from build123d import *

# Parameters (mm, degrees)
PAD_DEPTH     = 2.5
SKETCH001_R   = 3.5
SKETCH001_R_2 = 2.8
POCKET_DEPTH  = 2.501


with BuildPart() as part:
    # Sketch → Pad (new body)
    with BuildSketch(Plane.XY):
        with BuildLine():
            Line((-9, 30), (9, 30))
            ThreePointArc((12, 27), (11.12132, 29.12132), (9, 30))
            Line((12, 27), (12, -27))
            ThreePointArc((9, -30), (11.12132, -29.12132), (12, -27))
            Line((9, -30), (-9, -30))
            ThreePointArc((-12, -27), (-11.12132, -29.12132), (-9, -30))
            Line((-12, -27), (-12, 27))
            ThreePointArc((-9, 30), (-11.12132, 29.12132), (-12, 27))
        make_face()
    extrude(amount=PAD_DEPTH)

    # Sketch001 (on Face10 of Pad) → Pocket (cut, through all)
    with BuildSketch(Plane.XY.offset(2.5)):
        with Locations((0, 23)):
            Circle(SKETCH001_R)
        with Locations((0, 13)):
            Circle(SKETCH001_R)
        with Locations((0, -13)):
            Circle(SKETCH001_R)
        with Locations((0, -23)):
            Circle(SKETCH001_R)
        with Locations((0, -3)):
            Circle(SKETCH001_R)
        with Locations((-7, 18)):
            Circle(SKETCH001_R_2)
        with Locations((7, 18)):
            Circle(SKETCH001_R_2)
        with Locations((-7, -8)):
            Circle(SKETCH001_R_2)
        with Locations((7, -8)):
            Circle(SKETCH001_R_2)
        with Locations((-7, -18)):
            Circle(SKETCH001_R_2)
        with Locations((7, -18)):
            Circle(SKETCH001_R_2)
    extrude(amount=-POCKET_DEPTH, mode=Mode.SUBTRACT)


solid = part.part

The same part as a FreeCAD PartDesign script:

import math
import FreeCAD as App
import Part
import Sketcher
from FreeCAD import Vector

doc = App.newDocument("Part")
body = doc.addObject("PartDesign::Body", "Body")

# Sketch on XY plane
sketch1 = doc.addObject("Sketcher::SketchObject", "Sketch")
body.addObject(sketch1)
sketch1.AttachmentSupport = (doc.XY_Plane, [""])
sketch1.MapMode = "FlatFace"
sketch1.addGeometry([
    Part.LineSegment(Vector(9, 30, 0), Vector(-9, 30, 0)),  # 0
    Part.ArcOfCircle(Part.Circle(Vector(-8.999999, 26.999999, 0), Vector(0, 0, 1), 3.000001), math.radians(90.000022), math.radians(179.999978)),  # 1
    Part.LineSegment(Vector(-12, 27, 0), Vector(-12, -27, 0)),  # 2
    Part.ArcOfCircle(Part.Circle(Vector(-8.999999, -26.999999, 0), Vector(0, 0, 1), 3.000001), math.radians(-179.999978), math.radians(-90.000022)),  # 3
    Part.LineSegment(Vector(-9, -30, 0), Vector(9, -30, 0)),  # 4
    Part.ArcOfCircle(Part.Circle(Vector(8.999999, -26.999999, 0), Vector(0, 0, 1), 3.000001), math.radians(-89.999978), math.radians(-0.000022)),  # 5
    Part.LineSegment(Vector(12, -27, 0), Vector(12, 27, 0)),  # 6
    Part.ArcOfCircle(Part.Circle(Vector(8.999999, 26.999999, 0), Vector(0, 0, 1), 3.000001), math.radians(0.000022), math.radians(89.999978)),  # 7
], False)
sketch1.addConstraint([
    Sketcher.Constraint("Tangent", 0, 2, 1, 1),
    Sketcher.Constraint("Tangent", 1, 2, 2, 1),
    Sketcher.Constraint("Tangent", 2, 2, 3, 1),
    Sketcher.Constraint("Tangent", 3, 2, 4, 1),
    Sketcher.Constraint("Tangent", 4, 2, 5, 1),
    Sketcher.Constraint("Tangent", 5, 2, 6, 1),
    Sketcher.Constraint("Tangent", 6, 2, 7, 1),
    Sketcher.Constraint("Tangent", 7, 2, 0, 1),
    Sketcher.Constraint("Horizontal", 0),
    Sketcher.Constraint("Vertical", 2),
    Sketcher.Constraint("Horizontal", 4),
    Sketcher.Constraint("Vertical", 6),
    Sketcher.Constraint("Equal", 1, 3),
    Sketcher.Constraint("Equal", 3, 5),
    Sketcher.Constraint("Equal", 5, 7),
    Sketcher.Constraint("Symmetric", 1, 3, 5, 3, -1, 1),
    Sketcher.Constraint("Radius", 1, 3.000001),
    Sketcher.Constraint("DistanceX", 0, 2, 0, 1, 18.0),
    Sketcher.Constraint("DistanceY", 2, 2, 2, 1, 54.0),
])
pad1 = doc.addObject("PartDesign::Pad", "Pad")
body.addObject(pad1)
pad1.Profile = sketch1
pad1.Length = 2.5

# Sketch on XY plane
sketch2 = doc.addObject("Sketcher::SketchObject", "Sketch001")
body.addObject(sketch2)
sketch2.AttachmentSupport = (doc.XY_Plane, [""])
sketch2.MapMode = "FlatFace"
sketch2.AttachmentOffset = App.Placement(Vector(0, 0, 2.5), App.Rotation())
sketch2.addGeometry([
    Part.Circle(Vector(0, 23, 0), Vector(0, 0, 1), 3.5),  # 0
    Part.Circle(Vector(0, 13, 0), Vector(0, 0, 1), 3.5),  # 1
    Part.Circle(Vector(0, -13, 0), Vector(0, 0, 1), 3.5),  # 2
    Part.Circle(Vector(0, -23, 0), Vector(0, 0, 1), 3.5),  # 3
    Part.Circle(Vector(0, -3, 0), Vector(0, 0, 1), 3.5),  # 4
    Part.Circle(Vector(-7, 18, 0), Vector(0, 0, 1), 2.8),  # 5
    Part.Circle(Vector(7, 18, 0), Vector(0, 0, 1), 2.8),  # 6
    Part.Circle(Vector(-7, -8, 0), Vector(0, 0, 1), 2.8),  # 7
    Part.Circle(Vector(7, -8, 0), Vector(0, 0, 1), 2.8),  # 8
    Part.Circle(Vector(-7, -18, 0), Vector(0, 0, 1), 2.8),  # 9
    Part.Circle(Vector(7, -18, 0), Vector(0, 0, 1), 2.8),  # 10
], False)
sketch2.addConstraint([
    Sketcher.Constraint("Equal", 0, 1),
    Sketcher.Constraint("Equal", 1, 2),
    Sketcher.Constraint("Equal", 2, 3),
    Sketcher.Constraint("Equal", 3, 4),
    Sketcher.Constraint("Equal", 5, 6),
    Sketcher.Constraint("Equal", 6, 7),
    Sketcher.Constraint("Equal", 7, 8),
    Sketcher.Constraint("Equal", 8, 9),
    Sketcher.Constraint("Equal", 9, 10),
    Sketcher.Constraint("Symmetric", 1, 3, 2, 3, -1, 1),
    Sketcher.Constraint("Symmetric", 0, 3, 3, 3, -1, 1),
    Sketcher.Constraint("Symmetric", 6, 3, 9, 3, -1, 1),
    Sketcher.Constraint("Symmetric", 5, 3, 10, 3, -1, 1),
    Sketcher.Constraint("Symmetric", 5, 3, 6, 3, -2),
    Sketcher.Constraint("Symmetric", 7, 3, 8, 3, -2),
    Sketcher.Constraint("PointOnObject", 0, 3, -2),
    Sketcher.Constraint("PointOnObject", 1, 3, -2),
    Sketcher.Constraint("PointOnObject", 4, 3, -2),
    Sketcher.Constraint("Vertical", 5, 3, 7, 3),
    Sketcher.Constraint("Diameter", 0, 7.0),
    Sketcher.Constraint("Diameter", 5, 5.6),
    Sketcher.Constraint("DistanceY", -1, 1, 0, 3, 23.0),
    Sketcher.Constraint("DistanceY", -1, 1, 1, 3, 13.0),
    Sketcher.Constraint("DistanceY", 4, 3, -1, 1, 3.0),
    Sketcher.Constraint("DistanceX", 5, 3, -1, 1, 7.0),
    Sketcher.Constraint("DistanceY", -1, 1, 5, 3, 18.0),
    Sketcher.Constraint("DistanceY", 7, 3, -1, 1, 8.0),
])
pocket1 = doc.addObject("PartDesign::Pocket", "Pocket")
body.addObject(pocket1)
pocket1.Profile = sketch2
pocket1.Type = "ThroughAll"

doc.recompute()
